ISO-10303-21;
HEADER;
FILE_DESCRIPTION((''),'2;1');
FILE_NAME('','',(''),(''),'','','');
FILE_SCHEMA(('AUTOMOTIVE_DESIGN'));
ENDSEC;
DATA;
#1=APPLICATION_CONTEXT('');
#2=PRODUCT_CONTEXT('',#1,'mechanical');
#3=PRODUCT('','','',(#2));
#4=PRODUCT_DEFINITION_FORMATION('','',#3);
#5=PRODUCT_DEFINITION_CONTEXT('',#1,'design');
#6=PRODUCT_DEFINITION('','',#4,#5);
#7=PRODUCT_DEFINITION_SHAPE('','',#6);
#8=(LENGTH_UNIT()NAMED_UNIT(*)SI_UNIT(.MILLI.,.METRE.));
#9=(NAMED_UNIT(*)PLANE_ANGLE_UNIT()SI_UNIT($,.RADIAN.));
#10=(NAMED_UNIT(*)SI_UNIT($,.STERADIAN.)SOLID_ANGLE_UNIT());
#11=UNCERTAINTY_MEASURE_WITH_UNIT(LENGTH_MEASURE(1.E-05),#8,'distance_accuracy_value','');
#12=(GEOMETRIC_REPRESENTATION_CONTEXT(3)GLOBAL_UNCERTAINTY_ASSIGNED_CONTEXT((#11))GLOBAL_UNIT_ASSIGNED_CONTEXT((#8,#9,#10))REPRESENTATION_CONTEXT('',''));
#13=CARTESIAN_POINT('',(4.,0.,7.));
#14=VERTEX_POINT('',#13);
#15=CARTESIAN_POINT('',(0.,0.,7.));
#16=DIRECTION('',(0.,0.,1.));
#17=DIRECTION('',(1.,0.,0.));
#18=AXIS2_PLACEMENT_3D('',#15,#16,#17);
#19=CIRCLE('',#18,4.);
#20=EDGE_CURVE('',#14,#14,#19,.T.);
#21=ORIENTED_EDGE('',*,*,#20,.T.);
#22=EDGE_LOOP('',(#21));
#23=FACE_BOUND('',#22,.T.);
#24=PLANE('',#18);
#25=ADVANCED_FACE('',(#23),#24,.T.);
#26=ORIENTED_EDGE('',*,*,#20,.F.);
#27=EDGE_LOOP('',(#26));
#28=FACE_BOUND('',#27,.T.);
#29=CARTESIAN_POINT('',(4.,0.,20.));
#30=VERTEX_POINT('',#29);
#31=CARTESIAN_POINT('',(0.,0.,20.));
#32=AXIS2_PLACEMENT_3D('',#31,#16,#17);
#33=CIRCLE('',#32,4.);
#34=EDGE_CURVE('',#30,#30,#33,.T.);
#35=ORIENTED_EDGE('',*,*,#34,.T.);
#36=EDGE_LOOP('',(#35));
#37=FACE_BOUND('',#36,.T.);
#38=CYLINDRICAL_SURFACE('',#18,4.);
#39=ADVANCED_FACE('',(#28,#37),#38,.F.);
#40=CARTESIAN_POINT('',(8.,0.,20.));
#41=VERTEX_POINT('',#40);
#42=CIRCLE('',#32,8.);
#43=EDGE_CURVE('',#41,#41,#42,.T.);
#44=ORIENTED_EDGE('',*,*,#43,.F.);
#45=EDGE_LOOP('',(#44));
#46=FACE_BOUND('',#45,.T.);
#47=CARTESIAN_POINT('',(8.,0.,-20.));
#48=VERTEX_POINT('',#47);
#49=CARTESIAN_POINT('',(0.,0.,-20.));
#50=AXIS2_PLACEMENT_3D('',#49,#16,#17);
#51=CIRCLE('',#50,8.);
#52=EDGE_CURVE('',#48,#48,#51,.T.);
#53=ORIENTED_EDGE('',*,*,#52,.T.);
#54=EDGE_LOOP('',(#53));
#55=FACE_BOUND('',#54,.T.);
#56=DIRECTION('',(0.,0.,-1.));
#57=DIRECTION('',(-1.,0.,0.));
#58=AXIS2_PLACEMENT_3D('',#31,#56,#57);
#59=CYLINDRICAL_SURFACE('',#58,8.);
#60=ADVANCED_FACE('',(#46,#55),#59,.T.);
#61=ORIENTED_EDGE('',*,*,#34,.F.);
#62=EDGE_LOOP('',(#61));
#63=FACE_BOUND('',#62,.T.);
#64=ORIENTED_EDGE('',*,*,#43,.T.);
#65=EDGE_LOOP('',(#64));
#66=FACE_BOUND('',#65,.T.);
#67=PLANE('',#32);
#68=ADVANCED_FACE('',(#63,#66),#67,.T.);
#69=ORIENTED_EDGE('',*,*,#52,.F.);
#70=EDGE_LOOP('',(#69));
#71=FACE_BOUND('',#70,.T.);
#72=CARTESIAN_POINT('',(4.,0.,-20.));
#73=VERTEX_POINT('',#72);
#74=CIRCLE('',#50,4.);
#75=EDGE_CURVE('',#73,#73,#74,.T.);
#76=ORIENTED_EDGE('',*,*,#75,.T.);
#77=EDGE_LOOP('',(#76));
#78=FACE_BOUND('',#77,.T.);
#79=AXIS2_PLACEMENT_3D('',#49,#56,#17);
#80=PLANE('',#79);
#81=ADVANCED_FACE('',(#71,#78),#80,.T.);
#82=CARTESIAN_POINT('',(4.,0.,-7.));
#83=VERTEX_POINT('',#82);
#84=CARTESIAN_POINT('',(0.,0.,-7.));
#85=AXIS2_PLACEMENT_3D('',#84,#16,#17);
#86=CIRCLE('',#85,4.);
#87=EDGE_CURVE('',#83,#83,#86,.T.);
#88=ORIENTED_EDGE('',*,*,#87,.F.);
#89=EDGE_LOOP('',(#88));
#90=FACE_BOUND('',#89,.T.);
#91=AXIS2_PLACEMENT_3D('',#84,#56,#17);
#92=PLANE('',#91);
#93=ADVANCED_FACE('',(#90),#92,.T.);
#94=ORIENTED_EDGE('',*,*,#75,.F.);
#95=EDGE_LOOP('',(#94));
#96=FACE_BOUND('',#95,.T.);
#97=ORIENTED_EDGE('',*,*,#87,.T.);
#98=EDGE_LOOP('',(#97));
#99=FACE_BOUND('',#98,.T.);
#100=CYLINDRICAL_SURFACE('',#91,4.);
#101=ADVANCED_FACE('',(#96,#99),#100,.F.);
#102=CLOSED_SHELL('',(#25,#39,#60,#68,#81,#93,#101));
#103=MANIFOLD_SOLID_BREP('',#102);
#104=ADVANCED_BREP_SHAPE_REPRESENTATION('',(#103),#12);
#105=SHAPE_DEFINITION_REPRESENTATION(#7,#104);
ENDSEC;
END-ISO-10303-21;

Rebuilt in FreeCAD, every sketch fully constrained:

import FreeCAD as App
import Part
import Sketcher

V = App.Vector

doc = App.newDocument("Part")
params = doc.addObject("Spreadsheet::Sheet", "Params")
for row, (alias, value) in enumerate([
    ("sketch1_diameter", "16 mm"),
    ("pad1_length", "20 mm"),
    ("sketch2_diameter", "8 mm"),
    ("pocket1_length", "13 mm"),
], start=1):
    params.set(f"A{row}", alias)
    params.set(f"B{row}", "=" + value)
    params.setAlias(f"B{row}", alias)

body = doc.addObject("PartDesign::Body", "Body")

# Sketch on XY plane
sketch1 = doc.addObject("Sketcher::SketchObject", "Sketch")
body.addObject(sketch1)
sketch1.AttachmentSupport = (doc.XY_Plane, [""])
sketch1.MapMode = "FlatFace"
sketch1.addGeometry(Part.Circle(V(0, 0, 0), V(0, 0, 1), 8), False)
sketch1.addConstraint([
    Sketcher.Constraint("Coincident", 0, 3, -1, 1),
    Sketcher.Constraint("Diameter", 0, 16.0),
])
sketch1.setExpression("Constraints[1]", "Params.sketch1_diameter")
pad1 = doc.addObject("PartDesign::Pad", "Pad")
body.addObject(pad1)
pad1.Profile = sketch1
pad1.setExpression("Length", "Params.pad1_length")

# Sketch on XY plane
sketch2 = doc.addObject("Sketcher::SketchObject", "Sketch001")
body.addObject(sketch2)
sketch2.AttachmentSupport = (doc.XY_Plane, [""])
sketch2.MapMode = "FlatFace"
sketch2.AttachmentOffset = App.Placement(V(0, 0, 20), App.Rotation())
sketch2.addGeometry(Part.Circle(V(0, 0, 0), V(0, 0, 1), 4), False)
sketch2.addConstraint([
    Sketcher.Constraint("Coincident", 0, 3, -1, 1),
    Sketcher.Constraint("Diameter", 0, 8.0),
])
sketch2.setExpression("Constraints[1]", "Params.sketch2_diameter")
pocket1 = doc.addObject("PartDesign::Pocket", "Pocket")
body.addObject(pocket1)
pocket1.Profile = sketch2
pocket1.setExpression("Length", "Params.pocket1_length")
body2 = doc.addObject("PartDesign::Body", "Body001")
doc.recompute()

body2.BaseFeature = body
doc.recompute()

mirroring = doc.addObject("Part::Mirroring", "Mirroring")
mirroring.Source = body
mirroring.Base = V(0, 0, 0)
mirroring.Normal = V(0, 0, 1)
body3 = doc.addObject("PartDesign::Body", "Body002")
body3.BaseFeature = mirroring
boolean = doc.addObject("PartDesign::Boolean", "Boolean")
body2.addObject(boolean)
boolean.Type = "Fuse"
boolean.addObjects([body3])
doc.recompute()
mirroring.Visibility = False

doc.recompute()
